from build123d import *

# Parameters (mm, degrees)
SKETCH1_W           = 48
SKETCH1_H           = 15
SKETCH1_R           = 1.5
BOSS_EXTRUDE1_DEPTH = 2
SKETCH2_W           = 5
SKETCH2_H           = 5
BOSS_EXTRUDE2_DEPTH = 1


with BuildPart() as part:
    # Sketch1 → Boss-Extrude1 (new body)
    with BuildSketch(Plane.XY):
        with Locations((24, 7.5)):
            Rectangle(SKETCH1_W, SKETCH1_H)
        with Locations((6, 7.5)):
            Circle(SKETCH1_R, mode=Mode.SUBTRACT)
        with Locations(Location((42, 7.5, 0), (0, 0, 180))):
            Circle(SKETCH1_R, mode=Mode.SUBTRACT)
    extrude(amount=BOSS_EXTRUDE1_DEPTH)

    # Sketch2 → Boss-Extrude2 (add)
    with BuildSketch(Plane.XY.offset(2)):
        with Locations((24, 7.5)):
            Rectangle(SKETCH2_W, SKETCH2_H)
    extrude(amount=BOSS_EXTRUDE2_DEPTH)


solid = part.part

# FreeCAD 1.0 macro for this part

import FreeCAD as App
import Part
import Sketcher
Q = App.Units.Quantity

doc = App.newDocument("Part")
body = doc.addObject("PartDesign::Body", "Body")

# Sketch on XY plane
sketch1 = body.newObject("Sketcher::SketchObject", "Sketch")
sketch1.AttachmentSupport = (doc.getObject("XY_Plane"), [""])
sketch1.MapMode = "FlatFace"
sketch1.addGeometry([
    Part.LineSegment(App.Vector(0, 15, 0), App.Vector(0, 0, 0)),  # 0
    Part.LineSegment(App.Vector(0, 0, 0), App.Vector(48, 0, 0)),  # 1
    Part.LineSegment(App.Vector(48, 0, 0), App.Vector(48, 15, 0)),  # 2
    Part.LineSegment(App.Vector(48, 15, 0), App.Vector(0, 15, 0)),  # 3
    Part.Circle(App.Vector(6, 7.5, 0), App.Vector(0, 0, 1), 1.5),  # 4
    Part.Circle(App.Vector(42, 7.5, 0), App.Vector(0, 0, 1), 1.5),  # 5
], False)
sketch1.addConstraint([
    Sketcher.Constraint("Coincident", 0, 2, 1, 1),
    Sketcher.Constraint("Coincident", 1, 2, 2, 1),
    Sketcher.Constraint("Coincident", 2, 2, 3, 1),
    Sketcher.Constraint("Coincident", 3, 2, 0, 1),
    Sketcher.Constraint("Vertical", 0),
    Sketcher.Constraint("Horizontal", 1),
    Sketcher.Constraint("Vertical", 2),
    Sketcher.Constraint("Horizontal", 3),
    Sketcher.Constraint("Coincident", 0, 2, -1, 1),
    Sketcher.Constraint("Equal", 4, 5),
    Sketcher.Constraint("Horizontal", 4, 3, 5, 3),
    Sketcher.Constraint("Diameter", 4, Q("3 mm")),
    Sketcher.Constraint("DistanceX", 1, 1, 1, 2, Q("48 mm")),
    Sketcher.Constraint("DistanceY", 0, 2, 0, 1, Q("15 mm")),
    Sketcher.Constraint("DistanceX", -1, 1, 4, 3, Q("6 mm")),
    Sketcher.Constraint("DistanceX", -1, 1, 5, 3, Q("42 mm")),
    Sketcher.Constraint("DistanceY", -1, 1, 4, 3, Q("7.5 mm")),
])
pad1 = body.newObject("PartDesign::Pad", "Pad")
pad1.Profile = sketch1
pad1.Length = 2

# Sketch on XY plane
sketch2 = body.newObject("Sketcher::SketchObject", "Sketch001")
sketch2.AttachmentSupport = (doc.getObject("XY_Plane"), [""])
sketch2.MapMode = "FlatFace"
sketch2.AttachmentOffset = App.Placement(App.Vector(0, 0, 2), App.Rotation())
sketch2.addGeometry([
    Part.LineSegment(App.Vector(22, 10, 0), App.Vector(22, 5, 0)),
    Part.LineSegment(App.Vector(22, 5, 0), App.Vector(26, 5, 0)),
    Part.LineSegment(App.Vector(26, 5, 0), App.Vector(26, 10, 0)),
    Part.LineSegment(App.Vector(26, 10, 0), App.Vector(22, 10, 0)),
], False)
sketch2.addConstraint([
    Sketcher.Constraint("Coincident", 0, 2, 1, 1),
    Sketcher.Constraint("Coincident", 1, 2, 2, 1),
    Sketcher.Constraint("Coincident", 2, 2, 3, 1),
    Sketcher.Constraint("Coincident", 3, 2, 0, 1),
    Sketcher.Constraint("Vertical", 0),
    Sketcher.Constraint("Horizontal", 1),
    Sketcher.Constraint("Vertical", 2),
    Sketcher.Constraint("Horizontal", 3),
    Sketcher.Constraint("Equal", 3, 0),
    Sketcher.Constraint("DistanceX", 1, 1, 1, 2, Q("5 mm")),
    Sketcher.Constraint("DistanceY", -1, 1, 0, 2, Q("5 mm")),
    Sketcher.Constraint("DistanceX", -1, 1, 0, 2, Q("21.5 mm")),
])
pad2 = body.newObject("PartDesign::Pad", "Pad001")
pad2.Profile = sketch2
pad2.Length = 1

doc.recompute()
